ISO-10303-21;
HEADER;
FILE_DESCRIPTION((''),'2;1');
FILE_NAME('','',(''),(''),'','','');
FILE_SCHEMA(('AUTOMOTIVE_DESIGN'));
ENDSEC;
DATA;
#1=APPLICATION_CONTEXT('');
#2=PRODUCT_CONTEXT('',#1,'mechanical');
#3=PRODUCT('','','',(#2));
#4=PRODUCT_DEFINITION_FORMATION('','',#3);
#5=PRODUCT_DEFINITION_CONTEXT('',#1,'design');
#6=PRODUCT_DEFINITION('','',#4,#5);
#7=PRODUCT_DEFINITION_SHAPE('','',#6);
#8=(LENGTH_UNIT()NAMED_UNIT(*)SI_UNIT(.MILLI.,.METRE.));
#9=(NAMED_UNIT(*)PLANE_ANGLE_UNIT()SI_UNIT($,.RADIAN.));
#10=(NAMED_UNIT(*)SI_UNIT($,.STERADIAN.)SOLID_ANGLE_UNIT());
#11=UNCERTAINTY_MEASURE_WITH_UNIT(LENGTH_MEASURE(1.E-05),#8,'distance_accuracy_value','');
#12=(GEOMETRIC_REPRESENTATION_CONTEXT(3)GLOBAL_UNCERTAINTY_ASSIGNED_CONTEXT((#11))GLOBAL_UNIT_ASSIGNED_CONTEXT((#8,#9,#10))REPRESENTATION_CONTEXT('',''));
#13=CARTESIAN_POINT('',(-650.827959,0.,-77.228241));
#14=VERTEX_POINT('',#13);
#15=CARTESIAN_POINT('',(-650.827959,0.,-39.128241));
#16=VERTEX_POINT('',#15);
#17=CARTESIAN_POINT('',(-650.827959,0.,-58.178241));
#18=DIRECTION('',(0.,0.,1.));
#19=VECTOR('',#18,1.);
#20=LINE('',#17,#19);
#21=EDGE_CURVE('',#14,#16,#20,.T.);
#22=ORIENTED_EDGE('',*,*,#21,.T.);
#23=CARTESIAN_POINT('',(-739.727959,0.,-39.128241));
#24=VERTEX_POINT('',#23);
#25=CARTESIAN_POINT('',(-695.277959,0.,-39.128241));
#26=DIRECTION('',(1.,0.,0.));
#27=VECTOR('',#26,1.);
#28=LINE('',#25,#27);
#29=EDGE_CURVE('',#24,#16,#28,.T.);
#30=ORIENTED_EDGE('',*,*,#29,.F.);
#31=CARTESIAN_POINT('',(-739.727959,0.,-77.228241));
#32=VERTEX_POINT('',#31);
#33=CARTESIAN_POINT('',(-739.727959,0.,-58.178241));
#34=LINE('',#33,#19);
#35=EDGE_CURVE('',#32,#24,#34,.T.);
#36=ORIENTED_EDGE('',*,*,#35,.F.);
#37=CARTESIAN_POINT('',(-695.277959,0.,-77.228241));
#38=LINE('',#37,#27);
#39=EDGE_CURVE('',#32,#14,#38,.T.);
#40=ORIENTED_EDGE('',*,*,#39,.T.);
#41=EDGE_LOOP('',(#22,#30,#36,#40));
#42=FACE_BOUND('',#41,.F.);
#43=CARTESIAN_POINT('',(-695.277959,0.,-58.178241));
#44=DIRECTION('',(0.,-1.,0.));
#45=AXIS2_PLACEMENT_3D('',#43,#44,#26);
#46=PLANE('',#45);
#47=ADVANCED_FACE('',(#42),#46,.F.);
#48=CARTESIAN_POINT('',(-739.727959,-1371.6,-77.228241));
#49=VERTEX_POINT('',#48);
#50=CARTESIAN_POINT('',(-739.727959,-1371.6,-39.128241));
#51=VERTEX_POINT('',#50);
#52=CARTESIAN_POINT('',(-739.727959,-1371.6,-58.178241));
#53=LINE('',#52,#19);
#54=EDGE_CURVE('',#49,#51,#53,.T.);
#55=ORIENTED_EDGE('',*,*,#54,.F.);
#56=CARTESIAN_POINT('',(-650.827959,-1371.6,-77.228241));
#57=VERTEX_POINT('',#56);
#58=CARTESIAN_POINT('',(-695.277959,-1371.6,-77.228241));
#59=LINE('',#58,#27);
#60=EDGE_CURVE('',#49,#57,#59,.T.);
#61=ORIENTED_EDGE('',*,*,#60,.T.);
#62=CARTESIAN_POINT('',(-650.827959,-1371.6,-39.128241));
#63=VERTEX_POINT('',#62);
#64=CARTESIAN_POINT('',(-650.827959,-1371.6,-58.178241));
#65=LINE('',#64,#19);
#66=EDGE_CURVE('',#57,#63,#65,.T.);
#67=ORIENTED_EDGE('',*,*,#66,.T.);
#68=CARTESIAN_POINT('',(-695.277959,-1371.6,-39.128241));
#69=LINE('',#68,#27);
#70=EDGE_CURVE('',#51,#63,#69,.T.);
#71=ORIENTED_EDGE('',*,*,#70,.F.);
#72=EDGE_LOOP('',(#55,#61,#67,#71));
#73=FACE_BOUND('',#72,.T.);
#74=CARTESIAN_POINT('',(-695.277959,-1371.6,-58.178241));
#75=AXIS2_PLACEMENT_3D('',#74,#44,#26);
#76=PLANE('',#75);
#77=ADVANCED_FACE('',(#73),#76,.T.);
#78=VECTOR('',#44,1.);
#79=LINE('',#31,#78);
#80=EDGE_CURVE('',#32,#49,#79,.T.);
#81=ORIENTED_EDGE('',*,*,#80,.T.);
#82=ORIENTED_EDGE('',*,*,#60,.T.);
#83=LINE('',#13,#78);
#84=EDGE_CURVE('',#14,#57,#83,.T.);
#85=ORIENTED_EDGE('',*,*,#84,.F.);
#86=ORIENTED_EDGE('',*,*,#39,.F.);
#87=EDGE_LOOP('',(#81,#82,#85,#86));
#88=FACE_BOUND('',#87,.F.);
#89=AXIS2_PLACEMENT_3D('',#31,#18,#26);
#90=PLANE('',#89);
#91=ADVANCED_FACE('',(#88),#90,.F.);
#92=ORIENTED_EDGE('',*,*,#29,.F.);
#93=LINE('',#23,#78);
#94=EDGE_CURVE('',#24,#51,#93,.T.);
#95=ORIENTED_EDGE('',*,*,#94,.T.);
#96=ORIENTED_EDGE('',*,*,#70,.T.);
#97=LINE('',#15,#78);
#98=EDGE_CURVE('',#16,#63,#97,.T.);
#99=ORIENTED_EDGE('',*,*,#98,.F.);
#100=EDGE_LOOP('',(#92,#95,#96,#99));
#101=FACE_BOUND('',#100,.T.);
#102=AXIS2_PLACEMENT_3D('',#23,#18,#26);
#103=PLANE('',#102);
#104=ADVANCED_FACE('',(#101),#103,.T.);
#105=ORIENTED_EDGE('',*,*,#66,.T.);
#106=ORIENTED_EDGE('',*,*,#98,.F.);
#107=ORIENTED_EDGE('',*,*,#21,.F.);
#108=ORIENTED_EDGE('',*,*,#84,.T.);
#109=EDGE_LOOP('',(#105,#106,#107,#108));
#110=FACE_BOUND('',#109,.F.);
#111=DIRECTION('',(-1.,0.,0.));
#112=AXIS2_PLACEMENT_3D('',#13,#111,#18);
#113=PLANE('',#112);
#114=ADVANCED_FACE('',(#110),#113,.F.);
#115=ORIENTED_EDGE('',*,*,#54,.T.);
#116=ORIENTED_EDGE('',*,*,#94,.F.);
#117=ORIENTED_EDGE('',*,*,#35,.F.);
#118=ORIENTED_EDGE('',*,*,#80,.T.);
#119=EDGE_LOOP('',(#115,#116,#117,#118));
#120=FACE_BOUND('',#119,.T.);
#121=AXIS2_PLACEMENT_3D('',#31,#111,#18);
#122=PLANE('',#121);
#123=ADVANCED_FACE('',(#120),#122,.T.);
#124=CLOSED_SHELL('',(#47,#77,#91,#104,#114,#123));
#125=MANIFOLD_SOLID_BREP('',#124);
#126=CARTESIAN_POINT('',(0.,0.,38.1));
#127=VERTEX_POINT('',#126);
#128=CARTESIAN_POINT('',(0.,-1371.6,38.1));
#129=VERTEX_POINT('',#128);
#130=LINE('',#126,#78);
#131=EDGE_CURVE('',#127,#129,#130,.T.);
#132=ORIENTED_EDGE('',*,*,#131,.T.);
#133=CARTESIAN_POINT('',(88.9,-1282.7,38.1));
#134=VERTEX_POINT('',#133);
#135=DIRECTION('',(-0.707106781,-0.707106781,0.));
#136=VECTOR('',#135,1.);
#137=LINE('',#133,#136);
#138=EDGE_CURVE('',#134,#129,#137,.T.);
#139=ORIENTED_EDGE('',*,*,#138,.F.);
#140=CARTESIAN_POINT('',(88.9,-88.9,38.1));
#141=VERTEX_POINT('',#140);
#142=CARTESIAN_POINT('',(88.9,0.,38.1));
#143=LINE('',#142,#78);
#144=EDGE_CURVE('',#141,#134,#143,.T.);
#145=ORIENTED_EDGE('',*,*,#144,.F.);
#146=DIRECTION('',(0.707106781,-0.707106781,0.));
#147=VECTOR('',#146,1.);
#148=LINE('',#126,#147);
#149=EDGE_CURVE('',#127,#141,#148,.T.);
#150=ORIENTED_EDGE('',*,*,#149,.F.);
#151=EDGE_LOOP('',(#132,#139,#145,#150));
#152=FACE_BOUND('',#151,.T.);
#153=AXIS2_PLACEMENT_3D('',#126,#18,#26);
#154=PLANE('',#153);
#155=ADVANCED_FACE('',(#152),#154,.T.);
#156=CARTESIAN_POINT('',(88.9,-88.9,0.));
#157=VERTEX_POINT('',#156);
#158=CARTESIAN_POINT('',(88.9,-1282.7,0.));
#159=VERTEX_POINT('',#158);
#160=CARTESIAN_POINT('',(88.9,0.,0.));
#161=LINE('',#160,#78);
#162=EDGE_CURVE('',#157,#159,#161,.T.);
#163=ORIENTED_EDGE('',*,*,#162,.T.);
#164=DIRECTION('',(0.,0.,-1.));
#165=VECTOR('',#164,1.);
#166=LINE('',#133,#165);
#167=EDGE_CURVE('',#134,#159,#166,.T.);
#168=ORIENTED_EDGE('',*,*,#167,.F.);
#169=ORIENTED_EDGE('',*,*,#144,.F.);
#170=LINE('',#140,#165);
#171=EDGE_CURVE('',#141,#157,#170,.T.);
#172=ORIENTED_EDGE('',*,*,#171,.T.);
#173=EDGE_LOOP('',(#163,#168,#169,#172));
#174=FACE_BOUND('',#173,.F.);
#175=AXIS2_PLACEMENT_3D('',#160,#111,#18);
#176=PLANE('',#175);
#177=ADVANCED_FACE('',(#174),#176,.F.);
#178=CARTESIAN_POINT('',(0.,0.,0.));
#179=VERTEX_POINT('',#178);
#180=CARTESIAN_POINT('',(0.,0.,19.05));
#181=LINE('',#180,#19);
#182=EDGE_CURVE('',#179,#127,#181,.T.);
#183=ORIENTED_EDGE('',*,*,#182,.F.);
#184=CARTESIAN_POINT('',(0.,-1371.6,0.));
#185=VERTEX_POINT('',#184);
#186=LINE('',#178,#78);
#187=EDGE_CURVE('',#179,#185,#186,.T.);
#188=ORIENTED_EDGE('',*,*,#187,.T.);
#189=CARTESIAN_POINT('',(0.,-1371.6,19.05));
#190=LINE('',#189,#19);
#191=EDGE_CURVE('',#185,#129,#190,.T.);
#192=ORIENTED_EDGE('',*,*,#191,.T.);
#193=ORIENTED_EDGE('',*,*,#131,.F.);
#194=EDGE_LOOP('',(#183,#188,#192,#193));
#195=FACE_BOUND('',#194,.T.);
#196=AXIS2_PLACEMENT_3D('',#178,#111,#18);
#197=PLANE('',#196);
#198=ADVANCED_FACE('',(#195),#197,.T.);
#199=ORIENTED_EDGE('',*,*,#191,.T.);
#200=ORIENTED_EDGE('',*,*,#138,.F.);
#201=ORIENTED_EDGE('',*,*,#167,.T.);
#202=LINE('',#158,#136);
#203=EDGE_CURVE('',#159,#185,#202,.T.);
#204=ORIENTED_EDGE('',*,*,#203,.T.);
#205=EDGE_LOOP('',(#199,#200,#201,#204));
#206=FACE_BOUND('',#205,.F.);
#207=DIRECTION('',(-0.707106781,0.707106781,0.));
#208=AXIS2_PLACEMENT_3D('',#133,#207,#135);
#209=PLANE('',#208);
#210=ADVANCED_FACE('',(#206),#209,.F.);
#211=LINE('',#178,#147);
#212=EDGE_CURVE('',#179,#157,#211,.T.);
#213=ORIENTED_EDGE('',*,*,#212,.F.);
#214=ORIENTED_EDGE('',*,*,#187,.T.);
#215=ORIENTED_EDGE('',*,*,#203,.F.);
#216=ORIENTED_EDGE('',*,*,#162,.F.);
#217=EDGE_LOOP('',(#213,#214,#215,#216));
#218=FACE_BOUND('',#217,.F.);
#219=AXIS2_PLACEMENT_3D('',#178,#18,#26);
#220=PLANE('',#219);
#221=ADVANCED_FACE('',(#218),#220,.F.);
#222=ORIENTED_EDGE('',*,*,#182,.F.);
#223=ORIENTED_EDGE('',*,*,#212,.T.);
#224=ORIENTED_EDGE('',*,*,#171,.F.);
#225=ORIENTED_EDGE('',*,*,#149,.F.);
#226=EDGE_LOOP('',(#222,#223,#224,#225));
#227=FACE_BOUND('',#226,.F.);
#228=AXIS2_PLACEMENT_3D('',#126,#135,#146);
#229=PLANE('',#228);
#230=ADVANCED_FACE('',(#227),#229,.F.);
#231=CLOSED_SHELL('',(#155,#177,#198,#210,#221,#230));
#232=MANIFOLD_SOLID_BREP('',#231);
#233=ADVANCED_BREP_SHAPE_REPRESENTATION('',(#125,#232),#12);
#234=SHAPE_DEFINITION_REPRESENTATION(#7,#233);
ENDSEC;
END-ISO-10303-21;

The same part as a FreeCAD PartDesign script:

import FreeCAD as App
import Part
import Sketcher

V = App.Vector
Q = App.Units.Quantity

doc = App.newDocument("Part")
body = doc.addObject("PartDesign::Body", "Body")

# Sketch on XZ plane
sketch1 = body.newObject("Sketcher::SketchObject", "Sketch")
sketch1.AttachmentSupport = (doc.getObject("XZ_Plane"), [""])
sketch1.MapMode = "FlatFace"
sketch1.addGeometry([
    Part.LineSegment(V(0, 38, 0), V(0, 0, 0)),
    Part.LineSegment(V(0, 0, 0), V(89, 0, 0)),
    Part.LineSegment(V(89, 0, 0), V(89, 38, 0)),
    Part.LineSegment(V(89, 38, 0), V(0, 38, 0)),
], False)
sketch1.addConstraint([
    Sketcher.Constraint("Coincident", 0, 2, 1, 1),
    Sketcher.Constraint("Coincident", 1, 2, 2, 1),
    Sketcher.Constraint("Coincident", 2, 2, 3, 1),
    Sketcher.Constraint("Coincident", 3, 2, 0, 1),
    Sketcher.Constraint("Vertical", 0),
    Sketcher.Constraint("Horizontal", 1),
    Sketcher.Constraint("Vertical", 2),
    Sketcher.Constraint("Horizontal", 3),
    Sketcher.Constraint("Coincident", 0, 2, -1, 1),
    Sketcher.Constraint("DistanceX", 1, 1, 1, 2, Q("3.5 in")),
    Sketcher.Constraint("DistanceY", 0, 2, 0, 1, Q("1.5 in")),
])
pad1 = body.newObject("PartDesign::Pad", "Pad")
pad1.Profile = sketch1
pad1.Length = Q("54 in")

# Sketch on XY plane
sketch2 = body.newObject("Sketcher::SketchObject", "Sketch001")
sketch2.AttachmentSupport = (doc.getObject("XY_Plane"), [""])
sketch2.MapMode = "FlatFace"
sketch2.AttachmentOffset = App.Placement(V(0, 0, 1.5 * 25.4), App.Rotation())
sketch2.addGeometry([
    Part.LineSegment(V(89, -1283, 0), V(0, -1372, 0)),  # 0
    Part.LineSegment(V(0, -1372, 0), V(89, -1372, 0)),  # 1
    Part.LineSegment(V(89, -1372, 0), V(89, -1283, 0)),  # 2
    Part.LineSegment(V(0, 0, 0), V(89, -89, 0)),  # 3
    Part.LineSegment(V(89, -89, 0), V(89, 0, 0)),  # 4
    Part.LineSegment(V(89, 0, 0), V(0, 0, 0)),  # 5
], False)
sketch2.addConstraint([
    Sketcher.Constraint("Coincident", 0, 2, 1, 1),
    Sketcher.Constraint("Coincident", 1, 2, 2, 1),
    Sketcher.Constraint("Coincident", 2, 2, 0, 1),
    Sketcher.Constraint("Coincident", 3, 2, 4, 1),
    Sketcher.Constraint("Coincident", 4, 2, 5, 1),
    Sketcher.Constraint("Coincident", 5, 2, 3, 1),
    Sketcher.Constraint("Horizontal", 1),
    Sketcher.Constraint("Vertical", 2),
    Sketcher.Constraint("Vertical", 4),
    Sketcher.Constraint("Horizontal", 5),
    Sketcher.Constraint("Coincident", 5, 2, -1, 1),
    Sketcher.Constraint("PointOnObject", 0, 2, -2),
    Sketcher.Constraint("Perpendicular", 0, 3),
    Sketcher.Constraint("Vertical", 2, 2, 3, 2),
    Sketcher.Constraint("Equal", 5, 2),
    Sketcher.Constraint("DistanceX", 1, 1, 1, 2, Q("3.5 in")),
    Sketcher.Constraint("DistanceY", 0, 2, -1, 1, Q("54 in")),
])
pocket1 = body.newObject("PartDesign::Pocket", "Pocket")
pocket1.Profile = sketch2
pocket1.Type = "ThroughAll"
body2 = doc.addObject("PartDesign::Body", "Body001")

# Sketch on XZ plane
sketch3 = body2.newObject("Sketcher::SketchObject", "Sketch002")
sketch3.AttachmentSupport = (doc.getObject("XZ_Plane001"), [""])
sketch3.MapMode = "FlatFace"
sketch3.addGeometry([
    Part.LineSegment(V(-740, -39, 0), V(-740, -77, 0)),
    Part.LineSegment(V(-740, -77, 0), V(-651, -77, 0)),
    Part.LineSegment(V(-651, -77, 0), V(-651, -39, 0)),
    Part.LineSegment(V(-651, -39, 0), V(-740, -39, 0)),
], False)
sketch3.addConstraint([
    Sketcher.Constraint("Coincident", 0, 2, 1, 1),
    Sketcher.Constraint("Coincident", 1, 2, 2, 1),
    Sketcher.Constraint("Coincident", 2, 2, 3, 1),
    Sketcher.Constraint("Coincident", 3, 2, 0, 1),
    Sketcher.Constraint("Vertical", 0),
    Sketcher.Constraint("Horizontal", 1),
    Sketcher.Constraint("Vertical", 2),
    Sketcher.Constraint("Horizontal", 3),
    Sketcher.Constraint("DistanceX", 1, 1, 1, 2, Q("3.5 in")),
    Sketcher.Constraint("DistanceY", 0, 2, 0, 1, Q("1.5 in")),
    Sketcher.Constraint("DistanceX", 0, 2, -1, 1, 739.727959),
    Sketcher.Constraint("DistanceY", 0, 2, -1, 1, 77.228241),
])
pad2 = body2.newObject("PartDesign::Pad", "Pad001")
pad2.Profile = sketch3
pad2.Length = Q("54 in")

doc.recompute()
